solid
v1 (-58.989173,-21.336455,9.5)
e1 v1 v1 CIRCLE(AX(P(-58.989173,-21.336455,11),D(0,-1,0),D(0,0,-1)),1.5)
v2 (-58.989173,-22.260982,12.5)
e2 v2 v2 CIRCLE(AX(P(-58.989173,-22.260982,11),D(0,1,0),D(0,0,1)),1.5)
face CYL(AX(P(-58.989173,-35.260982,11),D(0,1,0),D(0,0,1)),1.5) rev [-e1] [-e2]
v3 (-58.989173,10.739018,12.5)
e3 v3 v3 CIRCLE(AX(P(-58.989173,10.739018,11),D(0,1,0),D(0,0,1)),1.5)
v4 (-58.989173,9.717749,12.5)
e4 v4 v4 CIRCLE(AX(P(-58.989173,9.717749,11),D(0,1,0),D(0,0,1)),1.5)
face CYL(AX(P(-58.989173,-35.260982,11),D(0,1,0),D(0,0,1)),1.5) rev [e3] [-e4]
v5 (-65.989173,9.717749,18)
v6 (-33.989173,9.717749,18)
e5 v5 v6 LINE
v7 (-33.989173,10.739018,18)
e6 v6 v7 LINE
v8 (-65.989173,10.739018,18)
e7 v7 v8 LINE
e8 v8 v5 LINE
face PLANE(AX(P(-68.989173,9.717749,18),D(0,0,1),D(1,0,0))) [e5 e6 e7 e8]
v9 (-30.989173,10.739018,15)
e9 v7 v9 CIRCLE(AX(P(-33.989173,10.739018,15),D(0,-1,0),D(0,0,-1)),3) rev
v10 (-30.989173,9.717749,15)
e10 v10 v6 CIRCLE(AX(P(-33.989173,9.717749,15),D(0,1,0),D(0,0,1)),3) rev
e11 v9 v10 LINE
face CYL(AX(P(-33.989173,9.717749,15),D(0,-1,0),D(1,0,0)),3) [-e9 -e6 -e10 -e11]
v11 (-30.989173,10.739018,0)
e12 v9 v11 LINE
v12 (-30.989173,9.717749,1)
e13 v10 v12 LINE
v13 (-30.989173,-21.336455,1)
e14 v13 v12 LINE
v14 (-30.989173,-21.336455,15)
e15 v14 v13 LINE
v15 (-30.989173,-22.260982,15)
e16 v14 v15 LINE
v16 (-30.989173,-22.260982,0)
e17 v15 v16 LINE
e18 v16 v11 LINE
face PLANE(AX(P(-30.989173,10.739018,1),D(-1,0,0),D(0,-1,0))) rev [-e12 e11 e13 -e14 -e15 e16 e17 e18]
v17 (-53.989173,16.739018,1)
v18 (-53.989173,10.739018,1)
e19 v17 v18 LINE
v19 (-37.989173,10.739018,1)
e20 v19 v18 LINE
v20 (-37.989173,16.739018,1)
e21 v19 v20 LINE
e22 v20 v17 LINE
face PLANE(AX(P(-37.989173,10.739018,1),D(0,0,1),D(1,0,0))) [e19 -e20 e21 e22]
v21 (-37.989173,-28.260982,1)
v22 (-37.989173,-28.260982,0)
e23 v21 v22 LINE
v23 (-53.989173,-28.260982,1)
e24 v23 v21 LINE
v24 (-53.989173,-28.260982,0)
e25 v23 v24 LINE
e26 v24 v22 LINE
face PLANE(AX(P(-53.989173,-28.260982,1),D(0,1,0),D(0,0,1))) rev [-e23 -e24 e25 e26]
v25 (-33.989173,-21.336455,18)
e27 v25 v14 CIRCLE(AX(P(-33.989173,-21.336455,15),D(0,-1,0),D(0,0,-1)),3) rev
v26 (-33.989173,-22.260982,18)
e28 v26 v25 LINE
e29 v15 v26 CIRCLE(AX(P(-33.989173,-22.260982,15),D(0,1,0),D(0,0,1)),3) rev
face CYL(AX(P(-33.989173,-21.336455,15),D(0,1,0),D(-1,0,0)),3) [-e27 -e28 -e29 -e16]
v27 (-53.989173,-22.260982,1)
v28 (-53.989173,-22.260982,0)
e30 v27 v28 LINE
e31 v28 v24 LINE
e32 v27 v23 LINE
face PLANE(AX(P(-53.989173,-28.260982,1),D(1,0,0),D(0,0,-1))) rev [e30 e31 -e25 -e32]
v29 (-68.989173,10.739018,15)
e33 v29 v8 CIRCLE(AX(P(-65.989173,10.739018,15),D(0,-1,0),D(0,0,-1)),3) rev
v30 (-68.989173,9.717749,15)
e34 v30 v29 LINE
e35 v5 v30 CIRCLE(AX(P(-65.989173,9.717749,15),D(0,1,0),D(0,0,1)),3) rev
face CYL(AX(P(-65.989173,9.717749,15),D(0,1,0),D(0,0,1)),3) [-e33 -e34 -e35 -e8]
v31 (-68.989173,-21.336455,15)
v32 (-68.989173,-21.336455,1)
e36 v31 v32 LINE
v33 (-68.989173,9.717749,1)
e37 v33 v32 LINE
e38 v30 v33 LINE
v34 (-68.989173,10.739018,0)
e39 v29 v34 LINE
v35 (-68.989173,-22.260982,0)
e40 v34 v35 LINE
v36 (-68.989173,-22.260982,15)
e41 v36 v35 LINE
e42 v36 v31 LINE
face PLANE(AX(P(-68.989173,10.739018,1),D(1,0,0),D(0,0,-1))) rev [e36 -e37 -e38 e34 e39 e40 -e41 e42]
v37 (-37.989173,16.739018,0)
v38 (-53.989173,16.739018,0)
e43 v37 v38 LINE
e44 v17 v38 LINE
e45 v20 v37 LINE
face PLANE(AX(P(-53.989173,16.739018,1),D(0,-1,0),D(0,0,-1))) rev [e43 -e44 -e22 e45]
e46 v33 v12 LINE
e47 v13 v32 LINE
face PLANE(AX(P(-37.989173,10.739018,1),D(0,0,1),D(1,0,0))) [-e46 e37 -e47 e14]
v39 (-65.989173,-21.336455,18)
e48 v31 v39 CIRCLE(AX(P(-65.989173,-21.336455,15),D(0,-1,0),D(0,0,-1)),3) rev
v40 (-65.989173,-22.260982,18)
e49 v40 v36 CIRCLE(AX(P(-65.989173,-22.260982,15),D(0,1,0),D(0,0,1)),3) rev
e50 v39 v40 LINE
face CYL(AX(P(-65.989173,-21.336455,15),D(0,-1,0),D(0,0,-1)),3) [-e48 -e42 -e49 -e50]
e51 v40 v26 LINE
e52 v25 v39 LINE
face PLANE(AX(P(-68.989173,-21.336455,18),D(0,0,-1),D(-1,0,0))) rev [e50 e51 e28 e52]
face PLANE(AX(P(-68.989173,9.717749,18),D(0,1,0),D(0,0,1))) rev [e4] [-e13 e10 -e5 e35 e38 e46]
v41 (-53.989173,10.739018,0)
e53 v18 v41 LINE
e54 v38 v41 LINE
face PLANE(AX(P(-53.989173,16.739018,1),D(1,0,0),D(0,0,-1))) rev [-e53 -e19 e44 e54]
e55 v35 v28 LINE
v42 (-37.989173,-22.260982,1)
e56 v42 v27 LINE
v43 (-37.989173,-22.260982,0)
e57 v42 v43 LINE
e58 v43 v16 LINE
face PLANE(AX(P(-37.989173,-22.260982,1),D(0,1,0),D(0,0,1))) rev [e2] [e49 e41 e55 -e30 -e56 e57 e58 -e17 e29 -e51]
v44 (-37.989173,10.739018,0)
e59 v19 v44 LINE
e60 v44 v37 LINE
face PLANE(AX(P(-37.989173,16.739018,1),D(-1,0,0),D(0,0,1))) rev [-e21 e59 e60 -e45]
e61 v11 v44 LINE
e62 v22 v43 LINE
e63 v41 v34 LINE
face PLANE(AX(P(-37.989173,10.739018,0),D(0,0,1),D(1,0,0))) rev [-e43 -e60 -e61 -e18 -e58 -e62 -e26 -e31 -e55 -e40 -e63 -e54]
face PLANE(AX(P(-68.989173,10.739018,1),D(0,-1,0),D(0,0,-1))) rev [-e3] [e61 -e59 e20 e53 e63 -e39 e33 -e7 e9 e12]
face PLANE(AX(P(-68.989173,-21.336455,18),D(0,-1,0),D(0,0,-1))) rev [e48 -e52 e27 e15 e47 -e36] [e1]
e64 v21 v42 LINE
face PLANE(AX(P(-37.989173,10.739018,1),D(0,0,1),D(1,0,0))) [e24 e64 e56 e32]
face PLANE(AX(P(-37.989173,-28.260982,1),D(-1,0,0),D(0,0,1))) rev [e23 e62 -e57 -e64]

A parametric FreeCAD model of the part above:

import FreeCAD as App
import Part
import Sketcher
Q = App.Units.Quantity


def edges_at(feature, points):
    """Names of the edges that pass closest to the given points."""
    edges = feature.Shape.Edges
    near = lambda p: min(range(len(edges)), key=lambda i: edges[i].distToShape(Part.Vertex(*p))[0])
    return sorted({f"Edge{near(p) + 1}" for p in points})


def add_polygon(sketch, points):
    """Adds a closed chain of lines whose ends are joined by coincident constraints."""
    first, n = sketch.GeometryCount, len(points)
    for a, b in zip(points, points[1:] + points[:1]):
        sketch.addGeometry(Part.LineSegment(App.Vector(*a, 0), App.Vector(*b, 0)), False)
    for i in range(n):
        sketch.addConstraint(Sketcher.Constraint("Coincident", first + i, 2, first + (i + 1) % n, 1))

doc = App.newDocument("Part")
body = doc.addObject("PartDesign::Body", "Body")

# Sketch on XY plane
sketch1 = body.newObject("Sketcher::SketchObject", "Sketch")
sketch1.AttachmentSupport = (doc.getObject("XY_Plane"), [""])
sketch1.MapMode = "FlatFace"
add_polygon(sketch1, [(-31, -22), (-31, 11), (-38, 11), (-38, 17), (-54, 17), (-54, 11), (-69, 11), (-69, -22), (-54, -22), (-54, -28), (-38, -28), (-38, -22)])  # lines 0-11
sketch1.addConstraint(Sketcher.Constraint("Vertical", 0))
sketch1.addConstraint(Sketcher.Constraint("Horizontal", 1))
sketch1.addConstraint(Sketcher.Constraint("Vertical", 2))
sketch1.addConstraint(Sketcher.Constraint("Horizontal", 3))
sketch1.addConstraint(Sketcher.Constraint("Vertical", 4))
sketch1.addConstraint(Sketcher.Constraint("Horizontal", 5))
sketch1.addConstraint(Sketcher.Constraint("Vertical", 6))
sketch1.addConstraint(Sketcher.Constraint("Horizontal", 7))
sketch1.addConstraint(Sketcher.Constraint("Vertical", 8))
sketch1.addConstraint(Sketcher.Constraint("Horizontal", 9))
sketch1.addConstraint(Sketcher.Constraint("Vertical", 10))
sketch1.addConstraint(Sketcher.Constraint("Horizontal", 11))
sketch1.addConstraint(Sketcher.Constraint("Horizontal", 1, 2, 4, 2))
sketch1.addConstraint(Sketcher.Constraint("Horizontal", 7, 2, 10, 2))
sketch1.addConstraint(Sketcher.Constraint("Vertical", 4, 2, 7, 2))
sketch1.addConstraint(Sketcher.Constraint("Vertical", 2, 2, 9, 2))
sketch1.addConstraint(Sketcher.Constraint("Equal", 4, 8))
sketch1.addConstraint(Sketcher.Constraint("DistanceX", 1, 2, 1, 1, Q("7 mm")))
sketch1.addConstraint(Sketcher.Constraint("DistanceX", 3, 2, 3, 1, Q("16 mm")))
sketch1.addConstraint(Sketcher.Constraint("DistanceX", 5, 2, 5, 1, Q("15 mm")))
sketch1.addConstraint(Sketcher.Constraint("DistanceY", 0, 1, 0, 2, Q("33 mm")))
sketch1.addConstraint(Sketcher.Constraint("DistanceY", 2, 1, 2, 2, Q("6 mm")))
sketch1.addConstraint(Sketcher.Constraint("DistanceY", -1, 1, 0, 2, Q("10.739018 mm")))
sketch1.addConstraint(Sketcher.Constraint("DistanceX", 0, 2, -1, 1, Q("30.989173 mm")))
pad1 = body.newObject("PartDesign::Pad", "Pad")
pad1.Profile = sketch1
pad1.Length = 1

# Sketch on XY plane
sketch2 = body.newObject("Sketcher::SketchObject", "Sketch001")
sketch2.AttachmentSupport = (doc.getObject("XY_Plane"), [""])
sketch2.MapMode = "FlatFace"
sketch2.AttachmentOffset = App.Placement(App.Vector(0, 0, 1), App.Rotation())
add_polygon(sketch2, [(-69, 10.7), (-69, 9.7), (-31, 9.7), (-31, 10.7)])  # lines 0-3
add_polygon(sketch2, [(-69, -21.3), (-69, -22.3), (-31, -22.3), (-31, -21.3)])  # lines 4-7
sketch2.addConstraint(Sketcher.Constraint("Vertical", 0))
sketch2.addConstraint(Sketcher.Constraint("Horizontal", 1))
sketch2.addConstraint(Sketcher.Constraint("Vertical", 2))
sketch2.addConstraint(Sketcher.Constraint("Horizontal", 3))
sketch2.addConstraint(Sketcher.Constraint("Vertical", 4))
sketch2.addConstraint(Sketcher.Constraint("Horizontal", 5))
sketch2.addConstraint(Sketcher.Constraint("Vertical", 6))
sketch2.addConstraint(Sketcher.Constraint("Horizontal", 7))
sketch2.addConstraint(Sketcher.Constraint("Vertical", 3, 2, 4, 2))
sketch2.addConstraint(Sketcher.Constraint("Vertical", 2, 2, 5, 2))
sketch2.addConstraint(Sketcher.Constraint("DistanceX", 1, 1, 1, 2, Q("38 mm")))
sketch2.addConstraint(Sketcher.Constraint("DistanceY", 4, 2, 3, 2, Q("33 mm")))
sketch2.addConstraint(Sketcher.Constraint("DistanceY", 0, 2, 0, 1, Q("1.021269 mm")))
sketch2.addConstraint(Sketcher.Constraint("DistanceY", 4, 2, 4, 1, Q("0.924527 mm")))
sketch2.addConstraint(Sketcher.Constraint("DistanceY", -1, 1, 0, 2, Q("9.717749 mm")))
sketch2.addConstraint(Sketcher.Constraint("DistanceX", 0, 2, -1, 1, Q("68.989173 mm")))
pad2 = body.newObject("PartDesign::Pad", "Pad001")
pad2.Profile = sketch2
pad2.Length = 17
doc.recompute()

fillet = body.newObject("PartDesign::Fillet", "Fillet")
fillet.Base = (pad2, edges_at(pad2, [
    (-68.989, -21.799, 18),
    (-30.989, -21.799, 18),
    (-30.989, 10.228, 18),
    (-68.989, 10.228, 18),
]))
fillet.Radius = 3

# Sketch on XZ plane
sketch3 = body.newObject("Sketcher::SketchObject", "Sketch002")
sketch3.AttachmentSupport = (doc.getObject("XZ_Plane"), [""])
sketch3.MapMode = "FlatFace"
sketch3.AttachmentOffset = App.Placement(App.Vector(0, 0, -10.739018), App.Rotation())
sketch3.addGeometry(Part.Circle(App.Vector(-109.7, 11.6, 0), App.Vector(0, 0, 1), 1.6), False)
sketch3.addGeometry(Part.Circle(App.Vector(-59, 11, 0), App.Vector(0, 0, 1), 1.5), False)
sketch3.addConstraint(Sketcher.Constraint("Diameter", 1, Q("3 mm")))
sketch3.addConstraint(Sketcher.Constraint("DistanceY", -1, 1, 1, 3, Q("11 mm")))
sketch3.addConstraint(Sketcher.Constraint("Diameter", 0, Q("3.10346 mm")))
sketch3.addConstraint(Sketcher.Constraint("DistanceY", -1, 1, 0, 3, Q("11.585691 mm")))
sketch3.addConstraint(Sketcher.Constraint("DistanceX", 0, 3, -1, 1, Q("109.664286 mm")))
sketch3.addConstraint(Sketcher.Constraint("DistanceX", 1, 3, -1, 1, Q("58.989173 mm")))
pocket1 = body.newObject("PartDesign::Pocket", "Pocket")
pocket1.Profile = sketch3
pocket1.Length = 46
pocket1.Reversed = True

doc.recompute()
